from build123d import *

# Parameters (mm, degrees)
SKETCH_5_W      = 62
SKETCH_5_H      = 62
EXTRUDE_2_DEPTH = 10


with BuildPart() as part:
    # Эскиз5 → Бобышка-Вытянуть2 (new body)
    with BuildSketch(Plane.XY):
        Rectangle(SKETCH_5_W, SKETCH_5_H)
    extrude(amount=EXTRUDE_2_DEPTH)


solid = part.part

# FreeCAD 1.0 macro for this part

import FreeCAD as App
import Part
import Sketcher
from FreeCAD import Vector

doc = App.newDocument("Part")
body = doc.addObject("PartDesign::Body", "Body")

# Sketch on XY plane
sketch1 = doc.addObject("Sketcher::SketchObject", "Sketch")
body.addObject(sketch1)
sketch1.AttachmentSupport = (doc.XY_Plane, [""])
sketch1.MapMode = "FlatFace"
sketch1.addGeometry([
    Part.LineSegment(Vector(-31, 31, 0), Vector(-31, -31, 0)),
    Part.LineSegment(Vector(-31, -31, 0), Vector(31, -31, 0)),
    Part.LineSegment(Vector(31, -31, 0), Vector(31, 31, 0)),
    Part.LineSegment(Vector(31, 31, 0), Vector(-31, 31, 0)),
], False)
sketch1.addConstraint([
    Sketcher.Constraint("Coincident", 0, 2, 1, 1),
    Sketcher.Constraint("Coincident", 1, 2, 2, 1),
    Sketcher.Constraint("Coincident", 2, 2, 3, 1),
    Sketcher.Constraint("Coincident", 3, 2, 0, 1),
    Sketcher.Constraint("Vertical", 0),
    Sketcher.Constraint("Horizontal", 1),
    Sketcher.Constraint("Vertical", 2),
    Sketcher.Constraint("Horizontal", 3),
    Sketcher.Constraint("Symmetric", 0, 2, 2, 2, -1, 1),
    Sketcher.Constraint("Equal", 3, 0),
    Sketcher.Constraint("DistanceX", 1, 1, 1, 2, 62.0),
])
pad1 = doc.addObject("PartDesign::Pad", "Pad")
body.addObject(pad1)
pad1.Profile = sketch1
pad1.Length = 10

doc.recompute()
